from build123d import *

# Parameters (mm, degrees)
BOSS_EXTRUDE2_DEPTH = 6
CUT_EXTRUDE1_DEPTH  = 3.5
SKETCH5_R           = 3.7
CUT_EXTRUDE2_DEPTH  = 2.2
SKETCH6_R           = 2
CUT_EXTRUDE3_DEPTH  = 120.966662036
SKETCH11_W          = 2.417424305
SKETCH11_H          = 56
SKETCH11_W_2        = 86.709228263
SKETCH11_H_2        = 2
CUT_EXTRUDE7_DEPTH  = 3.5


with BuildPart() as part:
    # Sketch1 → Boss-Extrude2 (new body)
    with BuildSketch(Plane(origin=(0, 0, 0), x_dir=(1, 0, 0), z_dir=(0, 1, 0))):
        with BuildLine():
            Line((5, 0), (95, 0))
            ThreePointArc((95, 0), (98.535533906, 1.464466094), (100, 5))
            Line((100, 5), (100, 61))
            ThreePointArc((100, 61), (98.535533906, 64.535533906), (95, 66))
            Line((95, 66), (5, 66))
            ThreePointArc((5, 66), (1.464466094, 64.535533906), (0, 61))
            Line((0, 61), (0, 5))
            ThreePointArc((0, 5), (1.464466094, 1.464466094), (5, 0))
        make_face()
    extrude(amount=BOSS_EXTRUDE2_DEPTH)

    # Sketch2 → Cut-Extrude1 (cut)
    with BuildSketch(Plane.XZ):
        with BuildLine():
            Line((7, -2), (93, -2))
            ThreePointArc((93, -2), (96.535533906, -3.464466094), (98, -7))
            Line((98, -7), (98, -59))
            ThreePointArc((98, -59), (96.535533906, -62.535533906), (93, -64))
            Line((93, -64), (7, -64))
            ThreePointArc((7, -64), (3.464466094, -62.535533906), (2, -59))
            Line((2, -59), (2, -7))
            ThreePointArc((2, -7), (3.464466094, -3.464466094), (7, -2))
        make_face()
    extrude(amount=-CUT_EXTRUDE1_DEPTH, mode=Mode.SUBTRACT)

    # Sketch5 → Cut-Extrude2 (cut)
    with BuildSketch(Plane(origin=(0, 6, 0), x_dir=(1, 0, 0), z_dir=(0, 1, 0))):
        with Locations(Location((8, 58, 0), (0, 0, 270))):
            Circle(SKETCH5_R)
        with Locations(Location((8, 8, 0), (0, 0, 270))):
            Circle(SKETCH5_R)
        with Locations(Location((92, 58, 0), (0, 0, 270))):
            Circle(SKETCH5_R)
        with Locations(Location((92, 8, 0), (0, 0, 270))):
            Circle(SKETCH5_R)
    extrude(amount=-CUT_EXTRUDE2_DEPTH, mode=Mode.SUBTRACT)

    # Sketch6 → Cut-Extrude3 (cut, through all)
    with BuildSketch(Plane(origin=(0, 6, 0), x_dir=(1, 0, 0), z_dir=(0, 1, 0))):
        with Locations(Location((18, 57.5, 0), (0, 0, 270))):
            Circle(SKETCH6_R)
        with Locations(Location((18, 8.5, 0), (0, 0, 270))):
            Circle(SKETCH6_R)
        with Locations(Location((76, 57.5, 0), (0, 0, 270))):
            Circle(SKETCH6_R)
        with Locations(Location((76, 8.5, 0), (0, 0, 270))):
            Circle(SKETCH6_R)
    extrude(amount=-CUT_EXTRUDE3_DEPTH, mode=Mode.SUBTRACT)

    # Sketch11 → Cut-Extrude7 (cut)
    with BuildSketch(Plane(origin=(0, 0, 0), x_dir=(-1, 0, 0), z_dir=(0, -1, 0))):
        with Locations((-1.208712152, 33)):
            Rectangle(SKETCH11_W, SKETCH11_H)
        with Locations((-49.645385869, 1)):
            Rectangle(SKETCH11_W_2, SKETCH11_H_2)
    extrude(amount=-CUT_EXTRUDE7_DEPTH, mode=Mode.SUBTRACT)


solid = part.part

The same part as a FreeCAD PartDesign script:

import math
import FreeCAD as App
import Part
import Sketcher
from FreeCAD import Vector

doc = App.newDocument("Part")
body = doc.addObject("PartDesign::Body", "Body")

# Sketch on XZ plane
sketch1 = body.newObject("Sketcher::SketchObject", "Sketch")
sketch1.AttachmentSupport = (doc.getObject("XZ_Plane"), [""])
sketch1.MapMode = "FlatFace"
sketch1.addGeometry([
    Part.LineSegment(Vector(5, 0, 0), Vector(95, 0, 0)),  # 0
    Part.ArcOfCircle(Part.Circle(Vector(95, -5, 0), Vector(0, 0, 1), 5), math.radians(0), math.radians(90)),  # 1
    Part.LineSegment(Vector(100, -5, 0), Vector(100, -61, 0)),  # 2
    Part.ArcOfCircle(Part.Circle(Vector(95, -61, 0), Vector(0, 0, 1), 5), math.radians(-90), math.radians(0)),  # 3
    Part.LineSegment(Vector(95, -66, 0), Vector(5, -66, 0)),  # 4
    Part.ArcOfCircle(Part.Circle(Vector(5, -61, 0), Vector(0, 0, 1), 5), math.radians(180), math.radians(270)),  # 5
    Part.LineSegment(Vector(0, -61, 0), Vector(0, -5, 0)),  # 6
    Part.ArcOfCircle(Part.Circle(Vector(5, -5, 0), Vector(0, 0, 1), 5), math.radians(90), math.radians(180)),  # 7
], False)
sketch1.addConstraint([
    Sketcher.Constraint("Tangent", 0, 2, 1, 2),
    Sketcher.Constraint("Tangent", 1, 1, 2, 1),
    Sketcher.Constraint("Tangent", 2, 2, 3, 2),
    Sketcher.Constraint("Tangent", 3, 1, 4, 1),
    Sketcher.Constraint("Tangent", 4, 2, 5, 2),
    Sketcher.Constraint("Tangent", 5, 1, 6, 1),
    Sketcher.Constraint("Tangent", 6, 2, 7, 2),
    Sketcher.Constraint("Tangent", 7, 1, 0, 1),
    Sketcher.Constraint("Horizontal", 0),
    Sketcher.Constraint("Vertical", 2),
    Sketcher.Constraint("Horizontal", 4),
    Sketcher.Constraint("Vertical", 6),
    Sketcher.Constraint("Equal", 1, 3),
    Sketcher.Constraint("Equal", 3, 5),
    Sketcher.Constraint("Equal", 5, 7),
    Sketcher.Constraint("PointOnObject", 0, 2, -1),
    Sketcher.Constraint("PointOnObject", 5, 1, -2),
    Sketcher.Constraint("Radius", 1, 5.0),
    Sketcher.Constraint("DistanceX", 0, 1, 0, 2, 90.0),
    Sketcher.Constraint("DistanceY", 2, 2, 2, 1, 56.0),
])
pad1 = body.newObject("PartDesign::Pad", "Pad")
pad1.Profile = sketch1
pad1.Length = 6
pad1.Reversed = True

# Sketch on XZ plane
sketch2 = body.newObject("Sketcher::SketchObject", "Sketch001")
sketch2.AttachmentSupport = (doc.getObject("XZ_Plane"), [""])
sketch2.MapMode = "FlatFace"
sketch2.addGeometry([
    Part.LineSegment(Vector(93, -2, 0), Vector(7, -2, 0)),  # 0
    Part.ArcOfCircle(Part.Circle(Vector(7, -7, 0), Vector(0, 0, 1), 5), math.radians(90), math.radians(180)),  # 1
    Part.LineSegment(Vector(2, -7, 0), Vector(2, -59, 0)),  # 2
    Part.ArcOfCircle(Part.Circle(Vector(7, -59, 0), Vector(0, 0, 1), 5), math.radians(180), math.radians(270)),  # 3
    Part.LineSegment(Vector(7, -64, 0), Vector(93, -64, 0)),  # 4
    Part.ArcOfCircle(Part.Circle(Vector(93, -59, 0), Vector(0, 0, 1), 5), math.radians(-90), math.radians(0)),  # 5
    Part.LineSegment(Vector(98, -59, 0), Vector(98, -7, 0)),  # 6
    Part.ArcOfCircle(Part.Circle(Vector(93, -7, 0), Vector(0, 0, 1), 5), math.radians(0), math.radians(90)),  # 7
], False)
sketch2.addConstraint([
    Sketcher.Constraint("Tangent", 0, 2, 1, 1),
    Sketcher.Constraint("Tangent", 1, 2, 2, 1),
    Sketcher.Constraint("Tangent", 2, 2, 3, 1),
    Sketcher.Constraint("Tangent", 3, 2, 4, 1),
    Sketcher.Constraint("Tangent", 4, 2, 5, 1),
    Sketcher.Constraint("Tangent", 5, 2, 6, 1),
    Sketcher.Constraint("Tangent", 6, 2, 7, 1),
    Sketcher.Constraint("Tangent", 7, 2, 0, 1),
    Sketcher.Constraint("Horizontal", 0),
    Sketcher.Constraint("Vertical", 2),
    Sketcher.Constraint("Horizontal", 4),
    Sketcher.Constraint("Vertical", 6),
    Sketcher.Constraint("Equal", 1, 3),
    Sketcher.Constraint("Equal", 3, 5),
    Sketcher.Constraint("Equal", 5, 7),
    Sketcher.Constraint("Radius", 1, 5.0),
    Sketcher.Constraint("DistanceX", 0, 2, 0, 1, 86.0),
    Sketcher.Constraint("DistanceY", 2, 2, 2, 1, 52.0),
    Sketcher.Constraint("DistanceX", -1, 1, 1, 3, 7.0),
    Sketcher.Constraint("DistanceY", 1, 3, -1, 1, 7.0),
])
pocket1 = body.newObject("PartDesign::Pocket", "Pocket")
pocket1.Profile = sketch2
pocket1.Length = 3.5

# Sketch on XZ plane
sketch3 = body.newObject("Sketcher::SketchObject", "Sketch002")
sketch3.AttachmentSupport = (doc.getObject("XZ_Plane"), [""])
sketch3.MapMode = "FlatFace"
sketch3.AttachmentOffset = App.Placement(Vector(0, 0, -6), App.Rotation())
sketch3.addGeometry([
    Part.Circle(Vector(8, -58, 0), Vector(0, 0, 1), 3.7),
    Part.Circle(Vector(8, -8, 0), Vector(0, 0, 1), 3.7),
    Part.Circle(Vector(92, -58, 0), Vector(0, 0, 1), 3.7),
    Part.Circle(Vector(92, -8, 0), Vector(0, 0, 1), 3.7),
], False)
sketch3.addConstraint([
    Sketcher.Constraint("Equal", 0, 1),
    Sketcher.Constraint("Equal", 1, 2),
    Sketcher.Constraint("Equal", 2, 3),
    Sketcher.Constraint("Horizontal", 0, 3, 2, 3),
    Sketcher.Constraint("Horizontal", 1, 3, 3, 3),
    Sketcher.Constraint("Vertical", 0, 3, 1, 3),
    Sketcher.Constraint("Vertical", 2, 3, 3, 3),
    Sketcher.Constraint("Diameter", 0, 7.4),
    Sketcher.Constraint("DistanceX", -1, 1, 0, 3, 8.0),
    Sketcher.Constraint("DistanceY", 0, 3, -1, 1, 58.0),
    Sketcher.Constraint("DistanceY", 1, 3, -1, 1, 8.0),
    Sketcher.Constraint("DistanceX", -1, 1, 2, 3, 92.0),
])
pocket2 = body.newObject("PartDesign::Pocket", "Pocket001")
pocket2.Profile = sketch3
pocket2.Length = 2.2
pocket2.Reversed = True

# Sketch on XZ plane
sketch4 = body.newObject("Sketcher::SketchObject", "Sketch003")
sketch4.AttachmentSupport = (doc.getObject("XZ_Plane"), [""])
sketch4.MapMode = "FlatFace"
sketch4.AttachmentOffset = App.Placement(Vector(0, 0, -6), App.Rotation())
sketch4.addGeometry([
    Part.Circle(Vector(18, -57.5, 0), Vector(0, 0, 1), 2),
    Part.Circle(Vector(18, -8.5, 0), Vector(0, 0, 1), 2),
    Part.Circle(Vector(76, -57.5, 0), Vector(0, 0, 1), 2),
    Part.Circle(Vector(76, -8.5, 0), Vector(0, 0, 1), 2),
], False)
sketch4.addConstraint([
    Sketcher.Constraint("Equal", 0, 1),
    Sketcher.Constraint("Equal", 1, 2),
    Sketcher.Constraint("Equal", 2, 3),
    Sketcher.Constraint("Horizontal", 0, 3, 2, 3),
    Sketcher.Constraint("Horizontal", 1, 3, 3, 3),
    Sketcher.Constraint("Vertical", 0, 3, 1, 3),
    Sketcher.Constraint("Vertical", 2, 3, 3, 3),
    Sketcher.Constraint("Diameter", 0, 4.0),
    Sketcher.Constraint("DistanceX", -1, 1, 0, 3, 18.0),
    Sketcher.Constraint("DistanceX", -1, 1, 2, 3, 76.0),
    Sketcher.Constraint("DistanceY", 0, 3, 1, 3, 49.0),
    Sketcher.Constraint("DistanceY", 0, 3, -1, 1, 57.5),
])
pocket3 = body.newObject("PartDesign::Pocket", "Pocket002")
pocket3.Profile = sketch4
pocket3.Type = "ThroughAll"
pocket3.Reversed = True

# Sketch on XZ plane
sketch5 = body.newObject("Sketcher::SketchObject", "Sketch004")
sketch5.AttachmentSupport = (doc.getObject("XZ_Plane"), [""])
sketch5.MapMode = "FlatFace"
sketch5.addGeometry([
    Part.LineSegment(Vector(2.4, -61, 0), Vector(2.4, -5, 0)),  # 0
    Part.LineSegment(Vector(2.4, -5, 0), Vector(0, -5, 0)),  # 1
    Part.LineSegment(Vector(0, -5, 0), Vector(0, -61, 0)),  # 2
    Part.LineSegment(Vector(0, -61, 0), Vector(2.4, -61, 0)),  # 3
    Part.LineSegment(Vector(93, -2, 0), Vector(93, 0, 0)),  # 4
    Part.LineSegment(Vector(93, 0, 0), Vector(6.3, 0, 0)),  # 5
    Part.LineSegment(Vector(6.3, 0, 0), Vector(6.3, -2, 0)),  # 6
    Part.LineSegment(Vector(6.3, -2, 0), Vector(93, -2, 0)),  # 7
], False)
sketch5.addConstraint([
    Sketcher.Constraint("Coincident", 0, 2, 1, 1),
    Sketcher.Constraint("Coincident", 1, 2, 2, 1),
    Sketcher.Constraint("Coincident", 2, 2, 3, 1),
    Sketcher.Constraint("Coincident", 3, 2, 0, 1),
    Sketcher.Constraint("Coincident", 4, 2, 5, 1),
    Sketcher.Constraint("Coincident", 5, 2, 6, 1),
    Sketcher.Constraint("Coincident", 6, 2, 7, 1),
    Sketcher.Constraint("Coincident", 7, 2, 4, 1),
    Sketcher.Constraint("Vertical", 0),
    Sketcher.Constraint("Horizontal", 1),
    Sketcher.Constraint("Vertical", 2),
    Sketcher.Constraint("Horizontal", 3),
    Sketcher.Constraint("Vertical", 4),
    Sketcher.Constraint("Horizontal", 5),
    Sketcher.Constraint("Vertical", 6),
    Sketcher.Constraint("Horizontal", 7),
    Sketcher.Constraint("PointOnObject", 1, 2, -2),
    Sketcher.Constraint("PointOnObject", 4, 2, -1),
    Sketcher.Constraint("DistanceY", 0, 1, 0, 2, 56.0),
    Sketcher.Constraint("DistanceY", 4, 1, 4, 2, 2.0),
    Sketcher.Constraint("DistanceY", 0, 2, -1, 1, 5.0),
    Sketcher.Constraint("DistanceX", -1, 1, 4, 2, 93.0),
    Sketcher.Constraint("DistanceX", 5, 2, 5, 1, 86.709228),
    Sketcher.Constraint("DistanceX", 1, 2, 1, 1, 2.417424),
])
pocket4 = body.newObject("PartDesign::Pocket", "Pocket003")
pocket4.Profile = sketch5
pocket4.Length = 3.5

doc.recompute()
